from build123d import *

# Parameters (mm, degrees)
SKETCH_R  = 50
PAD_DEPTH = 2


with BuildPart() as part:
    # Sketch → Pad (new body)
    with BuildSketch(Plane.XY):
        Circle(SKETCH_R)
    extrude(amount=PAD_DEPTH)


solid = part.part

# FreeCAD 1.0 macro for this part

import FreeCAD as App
import Part
import Sketcher
from FreeCAD import Vector

doc = App.newDocument("Part")
body = doc.addObject("PartDesign::Body", "Body")

# Sketch on XY plane
sketch1 = body.newObject("Sketcher::SketchObject", "Sketch")
sketch1.AttachmentSupport = (doc.getObject("XY_Plane"), [""])
sketch1.MapMode = "FlatFace"
sketch1.addGeometry(Part.Circle(Vector(0, 0, 0), Vector(0, 0, 1), 50), False)
sketch1.addConstraint([
    Sketcher.Constraint("Coincident", 0, 3, -1, 1),
    Sketcher.Constraint("Diameter", 0, 100.0),
])
pad1 = body.newObject("PartDesign::Pad", "Pad")
pad1.Profile = sketch1
pad1.Length = 2

doc.recompute()
